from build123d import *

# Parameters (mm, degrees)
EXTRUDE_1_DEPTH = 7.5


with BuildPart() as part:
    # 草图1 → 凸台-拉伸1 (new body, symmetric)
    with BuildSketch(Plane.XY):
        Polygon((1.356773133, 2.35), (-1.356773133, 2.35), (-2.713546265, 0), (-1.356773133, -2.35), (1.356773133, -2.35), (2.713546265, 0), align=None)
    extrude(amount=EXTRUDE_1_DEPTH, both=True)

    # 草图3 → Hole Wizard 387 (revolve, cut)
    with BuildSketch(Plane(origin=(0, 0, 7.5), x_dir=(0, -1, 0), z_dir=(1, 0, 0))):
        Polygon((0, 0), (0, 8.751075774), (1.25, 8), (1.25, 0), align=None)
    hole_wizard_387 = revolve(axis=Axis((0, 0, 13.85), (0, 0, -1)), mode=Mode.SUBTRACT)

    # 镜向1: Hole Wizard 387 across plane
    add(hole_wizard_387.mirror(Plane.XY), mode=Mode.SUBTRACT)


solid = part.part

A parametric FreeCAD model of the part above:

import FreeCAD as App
import Part
import Sketcher
Q = App.Units.Quantity

doc = App.newDocument("Part")
body = doc.addObject("PartDesign::Body", "Body")

# Sketch on XY plane
sketch1 = body.newObject("Sketcher::SketchObject", "Sketch")
sketch1.AttachmentSupport = (doc.getObject("XY_Plane"), [""])
sketch1.MapMode = "FlatFace"
sketch1.addGeometry(Part.LineSegment(App.Vector(1.356773, 2.35, 0), App.Vector(-1.356773, 2.35, 0)), False)
sketch1.addGeometry(Part.LineSegment(App.Vector(-1.356773, 2.35, 0), App.Vector(-2.713546, 0, 0)), False)
sketch1.addGeometry(Part.LineSegment(App.Vector(-2.713546, 0, 0), App.Vector(-1.356773, -2.35, 0)), False)
sketch1.addGeometry(Part.LineSegment(App.Vector(-1.356773, -2.35, 0), App.Vector(1.356773, -2.35, 0)), False)
sketch1.addGeometry(Part.LineSegment(App.Vector(1.356773, -2.35, 0), App.Vector(2.713546, 0, 0)), False)
sketch1.addGeometry(Part.LineSegment(App.Vector(2.713546, 0, 0), App.Vector(1.356773, 2.35, 0)), False)
sketch1.addConstraint(Sketcher.Constraint("Coincident", 0, 2, 1, 1))
sketch1.addConstraint(Sketcher.Constraint("Coincident", 1, 2, 2, 1))
sketch1.addConstraint(Sketcher.Constraint("Coincident", 2, 2, 3, 1))
sketch1.addConstraint(Sketcher.Constraint("Coincident", 3, 2, 4, 1))
sketch1.addConstraint(Sketcher.Constraint("Coincident", 4, 2, 5, 1))
sketch1.addConstraint(Sketcher.Constraint("Coincident", 5, 2, 0, 1))
sketch1.addConstraint(Sketcher.Constraint("Horizontal", 0))
sketch1.addConstraint(Sketcher.Constraint("Horizontal", 3))
sketch1.addConstraint(Sketcher.Constraint("Symmetric", 0, 2, 3, 2, -1, 1))
sketch1.addConstraint(Sketcher.Constraint("Symmetric", 1, 2, 4, 2, -1, 1))
sketch1.addConstraint(Sketcher.Constraint("PointOnObject", 1, 2, -1))
sketch1.addConstraint(Sketcher.Constraint("Parallel", 2, 5))
sketch1.addConstraint(Sketcher.Constraint("Vertical", 0, 2, 2, 2))
sketch1.addConstraint(Sketcher.Constraint("Angle", 1, Q("-120 deg")))
sketch1.addConstraint(Sketcher.Constraint("DistanceY", 2, 2, 0, 2, Q("4.7 mm")))
sketch1.addConstraint(Sketcher.Constraint("DistanceX", 0, 2, 0, 1, Q("2.713546 mm")))
pad1 = body.newObject("PartDesign::Pad", "Pad")
pad1.Profile = sketch1
pad1.Length = 15
pad1.Midplane = True

# Sketch on YZ plane
sketch2 = body.newObject("Sketcher::SketchObject", "Sketch001")
sketch2.AttachmentSupport = (doc.getObject("YZ_Plane"), [""])
sketch2.MapMode = "FlatFace"
sketch2.addGeometry(Part.LineSegment(App.Vector(0, -1.251076, 0), App.Vector(0, 7.5, 0)), False)
sketch2.addGeometry(Part.LineSegment(App.Vector(0, 7.5, 0), App.Vector(-1.25, 7.5, 0)), False)
sketch2.addGeometry(Part.LineSegment(App.Vector(-1.25, 7.5, 0), App.Vector(-1.25, -0.5, 0)), False)
sketch2.addGeometry(Part.LineSegment(App.Vector(-1.25, -0.5, 0), App.Vector(0, -1.251076, 0)), False)
sketch2.addConstraint(Sketcher.Constraint("Coincident", 0, 2, 1, 1))
sketch2.addConstraint(Sketcher.Constraint("Coincident", 1, 2, 2, 1))
sketch2.addConstraint(Sketcher.Constraint("Coincident", 2, 2, 3, 1))
sketch2.addConstraint(Sketcher.Constraint("Coincident", 3, 2, 0, 1))
sketch2.addConstraint(Sketcher.Constraint("Vertical", 0))
sketch2.addConstraint(Sketcher.Constraint("Horizontal", 1))
sketch2.addConstraint(Sketcher.Constraint("Vertical", 2))
sketch2.addConstraint(Sketcher.Constraint("PointOnObject", 0, 2, -2))
sketch2.addConstraint(Sketcher.Constraint("DistanceY", 2, 2, 2, 1, Q("8 mm")))
sketch2.addConstraint(Sketcher.Constraint("Angle", 3, Q("-31 deg")))
sketch2.addConstraint(Sketcher.Constraint("DistanceX", 1, 2, 1, 1, Q("1.25 mm")))
sketch2.addConstraint(Sketcher.Constraint("DistanceY", -1, 1, 0, 2, Q("7.5 mm")))
groove = body.newObject("PartDesign::Groove", "Groove")
groove.Profile = sketch2
groove.ReferenceAxis = (sketch2, ["V_Axis"])
groove.Angle = 360
doc.recompute()

mirrored = body.newObject("PartDesign::Mirrored", "Mirrored")
mirrored.Originals = [groove]
mirrored.MirrorPlane = (doc.getObject("XY_Plane"), [""])
body.Tip = mirrored

doc.recompute()
